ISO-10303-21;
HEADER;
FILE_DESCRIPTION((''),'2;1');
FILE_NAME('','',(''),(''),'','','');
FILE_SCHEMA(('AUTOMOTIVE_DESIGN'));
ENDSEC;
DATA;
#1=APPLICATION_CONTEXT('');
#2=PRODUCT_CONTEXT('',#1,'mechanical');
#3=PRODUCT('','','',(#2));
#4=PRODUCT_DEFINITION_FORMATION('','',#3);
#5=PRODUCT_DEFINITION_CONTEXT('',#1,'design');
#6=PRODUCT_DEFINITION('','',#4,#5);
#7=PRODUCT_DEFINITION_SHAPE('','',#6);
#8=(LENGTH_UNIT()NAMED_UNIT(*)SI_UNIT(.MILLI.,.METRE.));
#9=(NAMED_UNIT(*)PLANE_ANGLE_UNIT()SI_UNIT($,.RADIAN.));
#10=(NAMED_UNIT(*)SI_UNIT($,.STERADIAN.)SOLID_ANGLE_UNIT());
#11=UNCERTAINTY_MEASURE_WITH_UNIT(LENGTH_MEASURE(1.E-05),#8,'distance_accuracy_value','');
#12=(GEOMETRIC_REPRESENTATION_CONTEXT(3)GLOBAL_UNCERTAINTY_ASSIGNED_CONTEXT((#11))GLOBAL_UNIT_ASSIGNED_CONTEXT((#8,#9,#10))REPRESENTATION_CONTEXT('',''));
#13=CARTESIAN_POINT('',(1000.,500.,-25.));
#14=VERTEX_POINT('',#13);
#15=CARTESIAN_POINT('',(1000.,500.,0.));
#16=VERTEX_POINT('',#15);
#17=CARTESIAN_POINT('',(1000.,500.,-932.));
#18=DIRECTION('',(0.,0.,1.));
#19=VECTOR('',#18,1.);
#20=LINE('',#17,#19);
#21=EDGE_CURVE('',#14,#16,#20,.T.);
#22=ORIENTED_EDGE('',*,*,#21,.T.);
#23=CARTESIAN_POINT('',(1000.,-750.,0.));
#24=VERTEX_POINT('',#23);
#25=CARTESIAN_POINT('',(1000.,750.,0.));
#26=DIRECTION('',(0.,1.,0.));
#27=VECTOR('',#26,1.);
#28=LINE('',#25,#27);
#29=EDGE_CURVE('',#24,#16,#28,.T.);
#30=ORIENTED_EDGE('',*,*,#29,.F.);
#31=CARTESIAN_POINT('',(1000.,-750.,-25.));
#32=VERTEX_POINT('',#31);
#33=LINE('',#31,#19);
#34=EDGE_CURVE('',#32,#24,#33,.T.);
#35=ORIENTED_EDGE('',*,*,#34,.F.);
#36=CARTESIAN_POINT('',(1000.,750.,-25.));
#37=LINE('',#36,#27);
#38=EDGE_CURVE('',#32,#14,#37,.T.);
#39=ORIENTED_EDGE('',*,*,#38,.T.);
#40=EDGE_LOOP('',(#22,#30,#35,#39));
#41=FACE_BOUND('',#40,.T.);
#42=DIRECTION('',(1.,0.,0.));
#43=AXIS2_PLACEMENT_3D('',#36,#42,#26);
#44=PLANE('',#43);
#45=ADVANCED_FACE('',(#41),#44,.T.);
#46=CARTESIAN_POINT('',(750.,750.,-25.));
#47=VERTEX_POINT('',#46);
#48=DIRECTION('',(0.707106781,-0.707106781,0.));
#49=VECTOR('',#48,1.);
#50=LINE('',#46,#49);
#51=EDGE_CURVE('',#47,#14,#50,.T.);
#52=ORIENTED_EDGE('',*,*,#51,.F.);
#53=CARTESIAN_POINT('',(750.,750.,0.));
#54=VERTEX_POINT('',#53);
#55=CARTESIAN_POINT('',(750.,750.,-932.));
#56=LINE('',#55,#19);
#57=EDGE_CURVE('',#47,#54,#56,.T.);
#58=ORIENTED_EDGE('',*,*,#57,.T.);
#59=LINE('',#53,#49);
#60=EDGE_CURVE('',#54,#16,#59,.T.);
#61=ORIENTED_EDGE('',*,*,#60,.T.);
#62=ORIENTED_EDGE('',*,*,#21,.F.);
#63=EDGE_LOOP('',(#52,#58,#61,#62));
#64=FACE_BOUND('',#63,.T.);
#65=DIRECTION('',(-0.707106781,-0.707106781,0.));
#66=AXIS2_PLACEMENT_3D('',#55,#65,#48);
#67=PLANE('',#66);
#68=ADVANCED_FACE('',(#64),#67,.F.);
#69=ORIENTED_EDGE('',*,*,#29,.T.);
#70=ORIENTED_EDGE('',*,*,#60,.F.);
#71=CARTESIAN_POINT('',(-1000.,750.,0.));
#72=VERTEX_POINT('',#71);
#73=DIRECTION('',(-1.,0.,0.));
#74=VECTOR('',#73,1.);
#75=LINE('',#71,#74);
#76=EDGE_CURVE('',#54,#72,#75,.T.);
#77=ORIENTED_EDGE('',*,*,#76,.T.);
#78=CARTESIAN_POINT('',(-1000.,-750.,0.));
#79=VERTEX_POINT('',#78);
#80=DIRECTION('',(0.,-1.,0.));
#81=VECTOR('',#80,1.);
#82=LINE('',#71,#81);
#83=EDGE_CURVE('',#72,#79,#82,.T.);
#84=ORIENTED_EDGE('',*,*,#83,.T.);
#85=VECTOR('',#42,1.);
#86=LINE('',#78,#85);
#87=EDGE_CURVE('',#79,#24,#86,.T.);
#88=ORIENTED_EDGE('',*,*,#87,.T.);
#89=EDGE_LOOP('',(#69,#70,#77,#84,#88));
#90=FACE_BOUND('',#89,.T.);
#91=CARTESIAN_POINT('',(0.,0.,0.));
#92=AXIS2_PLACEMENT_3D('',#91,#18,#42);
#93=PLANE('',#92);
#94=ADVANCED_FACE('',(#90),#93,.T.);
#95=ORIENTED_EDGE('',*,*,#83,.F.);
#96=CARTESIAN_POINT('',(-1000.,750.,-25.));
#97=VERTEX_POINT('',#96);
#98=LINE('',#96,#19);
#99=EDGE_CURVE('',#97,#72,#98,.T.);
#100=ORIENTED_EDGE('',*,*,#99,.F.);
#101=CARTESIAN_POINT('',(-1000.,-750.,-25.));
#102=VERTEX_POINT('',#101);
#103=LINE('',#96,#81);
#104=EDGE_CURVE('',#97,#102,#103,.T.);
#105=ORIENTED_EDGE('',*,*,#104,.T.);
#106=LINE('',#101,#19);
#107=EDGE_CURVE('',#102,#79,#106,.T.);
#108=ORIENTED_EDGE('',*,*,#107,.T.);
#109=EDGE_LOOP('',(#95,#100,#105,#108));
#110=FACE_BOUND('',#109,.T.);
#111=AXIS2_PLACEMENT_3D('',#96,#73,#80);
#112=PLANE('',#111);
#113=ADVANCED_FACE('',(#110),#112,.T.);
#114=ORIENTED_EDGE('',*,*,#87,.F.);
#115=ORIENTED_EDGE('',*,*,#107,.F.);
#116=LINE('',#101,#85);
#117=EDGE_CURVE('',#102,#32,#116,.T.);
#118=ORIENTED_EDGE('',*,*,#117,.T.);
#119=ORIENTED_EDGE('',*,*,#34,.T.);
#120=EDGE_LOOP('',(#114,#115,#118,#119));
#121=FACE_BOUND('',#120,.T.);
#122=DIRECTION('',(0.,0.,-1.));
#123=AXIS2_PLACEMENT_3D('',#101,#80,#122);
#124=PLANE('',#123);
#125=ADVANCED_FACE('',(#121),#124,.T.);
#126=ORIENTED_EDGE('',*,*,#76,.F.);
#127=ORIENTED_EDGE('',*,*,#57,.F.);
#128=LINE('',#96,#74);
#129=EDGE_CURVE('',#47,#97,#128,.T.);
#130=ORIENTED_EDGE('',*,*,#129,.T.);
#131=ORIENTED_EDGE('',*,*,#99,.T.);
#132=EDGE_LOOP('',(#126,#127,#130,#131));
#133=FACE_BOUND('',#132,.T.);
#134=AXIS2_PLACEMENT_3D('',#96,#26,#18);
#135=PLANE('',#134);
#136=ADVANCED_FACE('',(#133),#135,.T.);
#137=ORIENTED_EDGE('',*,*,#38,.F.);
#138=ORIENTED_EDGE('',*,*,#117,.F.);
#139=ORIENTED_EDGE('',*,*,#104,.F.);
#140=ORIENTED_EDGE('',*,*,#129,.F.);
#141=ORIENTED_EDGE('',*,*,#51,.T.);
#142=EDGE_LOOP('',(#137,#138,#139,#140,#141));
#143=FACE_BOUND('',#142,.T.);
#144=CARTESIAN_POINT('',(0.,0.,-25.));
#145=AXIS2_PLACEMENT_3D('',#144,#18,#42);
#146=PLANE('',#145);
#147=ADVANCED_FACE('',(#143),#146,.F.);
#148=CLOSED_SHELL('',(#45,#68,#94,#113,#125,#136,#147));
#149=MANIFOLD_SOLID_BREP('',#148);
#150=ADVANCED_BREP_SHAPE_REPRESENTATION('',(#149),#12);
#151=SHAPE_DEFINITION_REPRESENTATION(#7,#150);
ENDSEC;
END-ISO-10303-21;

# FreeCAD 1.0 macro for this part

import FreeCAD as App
import Part
import Sketcher
from FreeCAD import Vector

doc = App.newDocument("Part")
params = doc.addObject("Spreadsheet::Sheet", "Params")
for row, (alias, value) in enumerate([
    ("sketch1_width", "2000 mm"),
    ("sketch1_height", "1500 mm"),
    ("pad1_length", "25 mm"),
    ("sketch2_width", "250 mm"),
    ("pocket1_length", "932 mm"),
], start=1):
    params.set(f"A{row}", alias)
    params.set(f"B{row}", "=" + value)
    params.setAlias(f"B{row}", alias)

body = doc.addObject("PartDesign::Body", "Body")

sketch1 = doc.addObject("Sketcher::SketchObject", "Sketch")
body.addObject(sketch1)
sketch1.AttachmentSupport = (doc.XY_Plane, [""])
sketch1.MapMode = "FlatFace"
sketch1.addGeometry([
    Part.LineSegment(Vector(-1000, 750, 0), Vector(-1000, -750, 0)),
    Part.LineSegment(Vector(-1000, -750, 0), Vector(1000, -750, 0)),
    Part.LineSegment(Vector(1000, -750, 0), Vector(1000, 750, 0)),
    Part.LineSegment(Vector(1000, 750, 0), Vector(-1000, 750, 0)),
], False)
sketch1.addConstraint([
    Sketcher.Constraint("Coincident", 0, 2, 1, 1),
    Sketcher.Constraint("Coincident", 1, 2, 2, 1),
    Sketcher.Constraint("Coincident", 2, 2, 3, 1),
    Sketcher.Constraint("Coincident", 3, 2, 0, 1),
    Sketcher.Constraint("Vertical", 0),
    Sketcher.Constraint("Horizontal", 1),
    Sketcher.Constraint("Vertical", 2),
    Sketcher.Constraint("Horizontal", 3),
    Sketcher.Constraint("Symmetric", 0, 2, 2, 2, -1, 1),
    Sketcher.Constraint("DistanceX", 1, 1, 1, 2, 2000.0),
    Sketcher.Constraint("DistanceY", 0, 2, 0, 1, 1500.0),
])
sketch1.setExpression("Constraints[9]", "Params.sketch1_width")
sketch1.setExpression("Constraints[10]", "Params.sketch1_height")
pad1 = doc.addObject("PartDesign::Pad", "Pad")
body.addObject(pad1)
pad1.Profile = sketch1
pad1.setExpression("Length", "Params.pad1_length")
pad1.Reversed = True

sketch2 = doc.addObject("Sketcher::SketchObject", "Sketch001")
body.addObject(sketch2)
sketch2.AttachmentSupport = (doc.XY_Plane, [""])
sketch2.MapMode = "FlatFace"
sketch2.addGeometry([
    Part.LineSegment(Vector(1000, 500, 0), Vector(1000, 750, 0)),
    Part.LineSegment(Vector(1000, 750, 0), Vector(750, 750, 0)),
    Part.LineSegment(Vector(750, 750, 0), Vector(1000, 500, 0)),
], False)
sketch2.addConstraint([
    Sketcher.Constraint("Coincident", 0, 2, 1, 1),
    Sketcher.Constraint("Coincident", 1, 2, 2, 1),
    Sketcher.Constraint("Coincident", 2, 2, 0, 1),
    Sketcher.Constraint("Vertical", 0),
    Sketcher.Constraint("Horizontal", 1),
    Sketcher.Constraint("Equal", 1, 0),
    Sketcher.Constraint("DistanceX", 1, 2, 1, 1, 250.0),
    Sketcher.Constraint("DistanceX", -1, 1, 0, 2, 1000.0),
    Sketcher.Constraint("DistanceY", -1, 1, 0, 2, 750.0),
])
sketch2.setExpression("Constraints[6]", "Params.sketch2_width")
pocket1 = doc.addObject("PartDesign::Pocket", "Pocket")
body.addObject(pocket1)
pocket1.Profile = sketch2
pocket1.setExpression("Length", "Params.pocket1_length")

doc.recompute()
